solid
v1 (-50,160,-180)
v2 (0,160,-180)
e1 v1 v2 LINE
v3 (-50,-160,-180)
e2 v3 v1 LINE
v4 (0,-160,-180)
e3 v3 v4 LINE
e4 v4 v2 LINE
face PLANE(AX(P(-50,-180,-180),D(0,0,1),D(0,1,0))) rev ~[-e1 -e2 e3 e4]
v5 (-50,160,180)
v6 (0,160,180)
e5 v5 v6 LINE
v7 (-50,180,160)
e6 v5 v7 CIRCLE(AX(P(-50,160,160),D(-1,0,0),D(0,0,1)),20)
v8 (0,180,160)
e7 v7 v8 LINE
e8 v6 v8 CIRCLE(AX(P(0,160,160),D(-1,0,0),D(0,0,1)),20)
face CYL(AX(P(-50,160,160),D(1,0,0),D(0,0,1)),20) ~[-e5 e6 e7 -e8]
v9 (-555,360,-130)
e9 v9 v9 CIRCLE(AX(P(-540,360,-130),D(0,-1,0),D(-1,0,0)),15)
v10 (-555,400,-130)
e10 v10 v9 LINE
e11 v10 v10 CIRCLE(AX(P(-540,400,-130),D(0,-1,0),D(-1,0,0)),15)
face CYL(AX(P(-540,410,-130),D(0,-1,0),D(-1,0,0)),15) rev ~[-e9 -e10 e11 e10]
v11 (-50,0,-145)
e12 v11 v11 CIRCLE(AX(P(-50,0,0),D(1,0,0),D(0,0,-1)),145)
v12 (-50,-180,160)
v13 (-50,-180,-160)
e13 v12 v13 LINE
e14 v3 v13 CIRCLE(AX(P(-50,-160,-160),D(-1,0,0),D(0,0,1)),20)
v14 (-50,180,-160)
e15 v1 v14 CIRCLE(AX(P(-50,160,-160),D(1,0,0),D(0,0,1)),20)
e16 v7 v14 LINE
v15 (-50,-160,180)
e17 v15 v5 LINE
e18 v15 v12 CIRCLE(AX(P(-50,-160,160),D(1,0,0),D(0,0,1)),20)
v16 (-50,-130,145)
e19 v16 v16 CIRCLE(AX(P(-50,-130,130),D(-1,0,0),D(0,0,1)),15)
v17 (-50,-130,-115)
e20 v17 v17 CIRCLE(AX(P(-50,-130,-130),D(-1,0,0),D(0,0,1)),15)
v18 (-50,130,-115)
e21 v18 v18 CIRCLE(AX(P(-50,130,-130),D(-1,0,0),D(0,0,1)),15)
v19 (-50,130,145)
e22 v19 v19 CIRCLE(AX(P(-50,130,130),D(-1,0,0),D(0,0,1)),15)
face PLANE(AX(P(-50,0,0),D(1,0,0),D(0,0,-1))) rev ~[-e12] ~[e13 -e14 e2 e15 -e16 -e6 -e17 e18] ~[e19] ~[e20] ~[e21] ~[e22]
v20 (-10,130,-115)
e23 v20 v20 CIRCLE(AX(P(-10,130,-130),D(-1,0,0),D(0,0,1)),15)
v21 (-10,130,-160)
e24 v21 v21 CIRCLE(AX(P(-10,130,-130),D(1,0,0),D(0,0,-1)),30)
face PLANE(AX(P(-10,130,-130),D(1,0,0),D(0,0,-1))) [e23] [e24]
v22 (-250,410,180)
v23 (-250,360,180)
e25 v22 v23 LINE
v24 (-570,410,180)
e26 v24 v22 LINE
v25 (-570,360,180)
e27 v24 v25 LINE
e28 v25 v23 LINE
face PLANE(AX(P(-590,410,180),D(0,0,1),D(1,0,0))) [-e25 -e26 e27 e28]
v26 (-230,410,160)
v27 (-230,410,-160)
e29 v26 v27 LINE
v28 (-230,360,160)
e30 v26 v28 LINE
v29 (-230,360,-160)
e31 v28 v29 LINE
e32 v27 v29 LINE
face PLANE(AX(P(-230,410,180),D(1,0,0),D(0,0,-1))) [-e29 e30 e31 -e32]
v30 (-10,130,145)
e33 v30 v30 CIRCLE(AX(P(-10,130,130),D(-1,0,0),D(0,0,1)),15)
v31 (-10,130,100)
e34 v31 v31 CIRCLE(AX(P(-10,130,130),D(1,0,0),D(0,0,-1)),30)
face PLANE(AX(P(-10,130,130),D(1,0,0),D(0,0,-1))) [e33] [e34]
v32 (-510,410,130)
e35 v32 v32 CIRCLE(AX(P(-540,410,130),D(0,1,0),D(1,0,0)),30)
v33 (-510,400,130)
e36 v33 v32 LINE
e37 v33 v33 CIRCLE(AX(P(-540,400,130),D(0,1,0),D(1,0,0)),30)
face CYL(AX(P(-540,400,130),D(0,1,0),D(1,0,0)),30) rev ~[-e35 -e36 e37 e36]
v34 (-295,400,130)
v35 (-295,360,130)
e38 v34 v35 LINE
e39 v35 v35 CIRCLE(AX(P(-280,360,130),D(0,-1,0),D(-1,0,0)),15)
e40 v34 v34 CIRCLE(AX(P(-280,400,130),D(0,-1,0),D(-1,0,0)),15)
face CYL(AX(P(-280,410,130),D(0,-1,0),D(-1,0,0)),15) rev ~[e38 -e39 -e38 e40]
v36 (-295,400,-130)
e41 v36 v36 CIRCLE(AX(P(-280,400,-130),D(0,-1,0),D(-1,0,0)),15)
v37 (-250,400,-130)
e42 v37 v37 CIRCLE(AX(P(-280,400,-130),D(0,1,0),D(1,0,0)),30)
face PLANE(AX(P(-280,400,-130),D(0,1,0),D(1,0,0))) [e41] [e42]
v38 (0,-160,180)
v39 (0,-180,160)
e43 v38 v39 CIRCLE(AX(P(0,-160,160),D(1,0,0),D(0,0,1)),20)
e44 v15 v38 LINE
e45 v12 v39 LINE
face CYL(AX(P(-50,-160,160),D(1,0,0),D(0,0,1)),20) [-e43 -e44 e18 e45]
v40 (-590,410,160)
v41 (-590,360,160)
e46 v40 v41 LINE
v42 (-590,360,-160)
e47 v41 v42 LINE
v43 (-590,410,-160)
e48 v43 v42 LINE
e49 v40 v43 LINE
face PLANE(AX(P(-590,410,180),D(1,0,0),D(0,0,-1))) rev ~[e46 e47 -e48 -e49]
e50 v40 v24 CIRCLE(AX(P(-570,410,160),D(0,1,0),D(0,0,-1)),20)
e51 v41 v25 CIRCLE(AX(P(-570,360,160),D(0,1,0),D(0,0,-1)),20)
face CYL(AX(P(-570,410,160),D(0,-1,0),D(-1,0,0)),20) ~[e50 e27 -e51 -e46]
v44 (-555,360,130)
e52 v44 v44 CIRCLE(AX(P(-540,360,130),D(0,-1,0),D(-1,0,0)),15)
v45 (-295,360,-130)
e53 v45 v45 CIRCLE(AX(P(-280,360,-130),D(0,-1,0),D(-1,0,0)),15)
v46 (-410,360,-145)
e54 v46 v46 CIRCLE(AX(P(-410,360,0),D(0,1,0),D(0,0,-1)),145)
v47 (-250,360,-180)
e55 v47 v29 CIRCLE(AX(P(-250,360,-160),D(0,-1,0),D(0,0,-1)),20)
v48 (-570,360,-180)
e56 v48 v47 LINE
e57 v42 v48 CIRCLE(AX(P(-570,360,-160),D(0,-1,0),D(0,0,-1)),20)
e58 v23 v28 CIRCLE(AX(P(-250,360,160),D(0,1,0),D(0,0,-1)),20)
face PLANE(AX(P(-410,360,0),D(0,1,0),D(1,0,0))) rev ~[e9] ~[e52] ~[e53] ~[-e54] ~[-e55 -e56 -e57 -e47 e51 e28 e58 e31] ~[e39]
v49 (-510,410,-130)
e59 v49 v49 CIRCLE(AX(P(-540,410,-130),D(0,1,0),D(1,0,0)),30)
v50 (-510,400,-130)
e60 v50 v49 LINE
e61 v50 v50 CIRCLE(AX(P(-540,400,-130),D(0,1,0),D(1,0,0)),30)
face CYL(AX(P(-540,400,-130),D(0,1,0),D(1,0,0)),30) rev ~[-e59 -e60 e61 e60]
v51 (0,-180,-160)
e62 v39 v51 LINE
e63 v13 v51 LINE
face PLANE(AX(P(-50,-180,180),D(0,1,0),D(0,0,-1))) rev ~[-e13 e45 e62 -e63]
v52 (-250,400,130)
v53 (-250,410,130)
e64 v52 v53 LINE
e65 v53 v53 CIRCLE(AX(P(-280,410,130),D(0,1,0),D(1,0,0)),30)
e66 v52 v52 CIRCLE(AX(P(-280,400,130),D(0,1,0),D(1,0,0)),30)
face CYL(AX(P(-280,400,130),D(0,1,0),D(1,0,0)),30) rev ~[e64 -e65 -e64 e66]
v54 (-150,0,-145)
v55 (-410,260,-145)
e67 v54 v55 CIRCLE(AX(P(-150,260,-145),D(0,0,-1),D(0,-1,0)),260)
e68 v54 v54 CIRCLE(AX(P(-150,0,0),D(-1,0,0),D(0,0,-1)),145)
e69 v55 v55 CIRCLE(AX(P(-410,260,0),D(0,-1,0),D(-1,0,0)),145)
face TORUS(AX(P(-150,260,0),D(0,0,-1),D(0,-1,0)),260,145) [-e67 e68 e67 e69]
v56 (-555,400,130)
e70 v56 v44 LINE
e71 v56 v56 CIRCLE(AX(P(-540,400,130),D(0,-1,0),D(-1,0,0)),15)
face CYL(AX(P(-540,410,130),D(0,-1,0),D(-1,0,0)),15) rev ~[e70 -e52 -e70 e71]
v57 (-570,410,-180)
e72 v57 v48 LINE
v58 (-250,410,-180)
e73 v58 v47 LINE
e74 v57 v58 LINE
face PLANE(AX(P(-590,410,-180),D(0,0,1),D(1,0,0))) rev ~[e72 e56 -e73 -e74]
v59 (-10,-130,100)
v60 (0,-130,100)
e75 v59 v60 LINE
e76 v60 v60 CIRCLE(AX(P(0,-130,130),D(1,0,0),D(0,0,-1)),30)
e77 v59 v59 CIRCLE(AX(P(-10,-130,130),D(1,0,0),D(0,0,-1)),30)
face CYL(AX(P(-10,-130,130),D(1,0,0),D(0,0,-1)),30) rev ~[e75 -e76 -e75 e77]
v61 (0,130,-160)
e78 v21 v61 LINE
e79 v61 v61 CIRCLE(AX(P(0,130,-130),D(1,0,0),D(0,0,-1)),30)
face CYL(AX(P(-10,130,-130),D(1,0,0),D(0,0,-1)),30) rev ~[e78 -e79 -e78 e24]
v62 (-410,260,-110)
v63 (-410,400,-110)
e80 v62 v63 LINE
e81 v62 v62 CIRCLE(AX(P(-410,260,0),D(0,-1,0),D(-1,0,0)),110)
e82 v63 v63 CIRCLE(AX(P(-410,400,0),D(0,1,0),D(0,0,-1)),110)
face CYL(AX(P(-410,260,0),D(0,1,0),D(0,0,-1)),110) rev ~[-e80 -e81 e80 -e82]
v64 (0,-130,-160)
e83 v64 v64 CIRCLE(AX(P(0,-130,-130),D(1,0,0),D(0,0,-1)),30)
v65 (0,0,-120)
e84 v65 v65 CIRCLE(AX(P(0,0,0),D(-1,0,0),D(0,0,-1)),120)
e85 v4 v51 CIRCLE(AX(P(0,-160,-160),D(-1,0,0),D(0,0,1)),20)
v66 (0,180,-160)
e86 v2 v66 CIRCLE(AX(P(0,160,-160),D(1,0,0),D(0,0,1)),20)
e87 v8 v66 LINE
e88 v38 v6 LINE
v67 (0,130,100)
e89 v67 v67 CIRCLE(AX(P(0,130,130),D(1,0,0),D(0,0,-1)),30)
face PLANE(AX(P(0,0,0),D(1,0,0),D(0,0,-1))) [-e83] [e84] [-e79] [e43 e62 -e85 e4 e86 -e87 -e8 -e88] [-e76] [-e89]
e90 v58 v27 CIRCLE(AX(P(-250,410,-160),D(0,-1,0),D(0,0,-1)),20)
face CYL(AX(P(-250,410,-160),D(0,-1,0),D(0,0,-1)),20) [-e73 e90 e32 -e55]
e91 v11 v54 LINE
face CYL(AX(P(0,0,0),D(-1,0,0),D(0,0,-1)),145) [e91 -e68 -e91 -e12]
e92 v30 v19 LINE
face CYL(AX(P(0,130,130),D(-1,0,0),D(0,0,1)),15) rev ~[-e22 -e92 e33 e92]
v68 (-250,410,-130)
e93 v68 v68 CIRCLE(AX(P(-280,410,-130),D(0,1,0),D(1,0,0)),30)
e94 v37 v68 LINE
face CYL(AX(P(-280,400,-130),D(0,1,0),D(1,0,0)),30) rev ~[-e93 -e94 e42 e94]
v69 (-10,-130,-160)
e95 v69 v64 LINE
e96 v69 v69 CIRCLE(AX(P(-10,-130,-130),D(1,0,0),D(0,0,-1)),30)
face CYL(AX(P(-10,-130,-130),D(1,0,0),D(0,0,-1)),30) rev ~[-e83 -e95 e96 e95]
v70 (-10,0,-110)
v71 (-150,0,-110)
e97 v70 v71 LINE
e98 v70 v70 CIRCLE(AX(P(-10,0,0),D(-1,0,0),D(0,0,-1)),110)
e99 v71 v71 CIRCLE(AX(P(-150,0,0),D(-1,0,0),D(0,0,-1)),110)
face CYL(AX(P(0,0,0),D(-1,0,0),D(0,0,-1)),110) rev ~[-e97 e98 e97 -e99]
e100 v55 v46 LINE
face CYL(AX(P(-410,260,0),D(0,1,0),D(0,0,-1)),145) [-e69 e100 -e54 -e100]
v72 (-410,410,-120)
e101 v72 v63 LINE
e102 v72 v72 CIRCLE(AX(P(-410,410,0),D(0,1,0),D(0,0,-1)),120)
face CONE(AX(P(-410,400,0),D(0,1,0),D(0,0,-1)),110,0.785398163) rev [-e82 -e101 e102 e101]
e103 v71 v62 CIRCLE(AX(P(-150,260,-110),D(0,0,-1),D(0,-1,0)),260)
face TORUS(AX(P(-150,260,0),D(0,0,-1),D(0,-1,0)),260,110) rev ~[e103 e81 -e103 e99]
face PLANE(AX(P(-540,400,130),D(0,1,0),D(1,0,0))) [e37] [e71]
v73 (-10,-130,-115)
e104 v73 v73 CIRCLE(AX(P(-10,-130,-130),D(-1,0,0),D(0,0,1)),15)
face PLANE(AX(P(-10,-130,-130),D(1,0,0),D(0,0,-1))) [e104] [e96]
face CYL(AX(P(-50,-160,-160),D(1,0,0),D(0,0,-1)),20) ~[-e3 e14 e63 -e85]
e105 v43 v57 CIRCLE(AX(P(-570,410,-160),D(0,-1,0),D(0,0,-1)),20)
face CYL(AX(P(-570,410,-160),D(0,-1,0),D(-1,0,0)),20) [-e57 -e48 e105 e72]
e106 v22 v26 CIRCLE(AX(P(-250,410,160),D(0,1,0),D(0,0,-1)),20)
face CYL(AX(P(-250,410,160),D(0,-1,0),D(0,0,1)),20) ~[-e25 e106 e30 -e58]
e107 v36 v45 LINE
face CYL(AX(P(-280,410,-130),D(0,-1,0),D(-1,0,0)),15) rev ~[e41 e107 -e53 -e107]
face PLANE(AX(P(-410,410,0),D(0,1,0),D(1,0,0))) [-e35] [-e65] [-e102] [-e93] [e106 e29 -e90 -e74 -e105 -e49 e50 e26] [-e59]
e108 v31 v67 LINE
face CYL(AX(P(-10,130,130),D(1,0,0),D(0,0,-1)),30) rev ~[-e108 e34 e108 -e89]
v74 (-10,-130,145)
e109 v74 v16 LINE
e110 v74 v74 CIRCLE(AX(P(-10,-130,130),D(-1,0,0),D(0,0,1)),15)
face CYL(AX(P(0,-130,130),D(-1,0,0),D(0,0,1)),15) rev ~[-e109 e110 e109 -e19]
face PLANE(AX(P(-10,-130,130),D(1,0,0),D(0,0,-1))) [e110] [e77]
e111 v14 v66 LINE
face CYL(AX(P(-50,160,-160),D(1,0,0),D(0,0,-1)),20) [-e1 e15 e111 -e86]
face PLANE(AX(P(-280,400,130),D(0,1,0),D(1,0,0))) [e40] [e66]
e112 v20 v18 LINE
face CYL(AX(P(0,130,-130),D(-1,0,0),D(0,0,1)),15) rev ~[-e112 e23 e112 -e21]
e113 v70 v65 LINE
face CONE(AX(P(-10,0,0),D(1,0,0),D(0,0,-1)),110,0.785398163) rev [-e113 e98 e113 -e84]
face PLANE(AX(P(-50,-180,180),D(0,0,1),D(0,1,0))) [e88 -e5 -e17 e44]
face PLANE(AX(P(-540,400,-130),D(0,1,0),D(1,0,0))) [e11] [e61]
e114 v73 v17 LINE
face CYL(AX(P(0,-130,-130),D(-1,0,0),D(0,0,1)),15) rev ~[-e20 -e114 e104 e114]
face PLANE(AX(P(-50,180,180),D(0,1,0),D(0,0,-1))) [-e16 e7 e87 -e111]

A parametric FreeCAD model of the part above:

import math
import FreeCAD as App
import Part
import Sketcher


def edges_at(feature, points):
    """Names of the edges that pass closest to the given points."""
    edges = feature.Shape.Edges
    near = lambda p: min(range(len(edges)), key=lambda i: edges[i].distToShape(Part.Vertex(*p))[0])
    return sorted({f"Edge{near(p) + 1}" for p in points})


def add_polygon(sketch, points):
    """Adds a closed chain of lines whose ends are joined by coincident constraints."""
    first, n = sketch.GeometryCount, len(points)
    for a, b in zip(points, points[1:] + points[:1]):
        sketch.addGeometry(Part.LineSegment(App.Vector(*a, 0), App.Vector(*b, 0)), False)
    for i in range(n):
        sketch.addConstraint(Sketcher.Constraint("Coincident", first + i, 2, first + (i + 1) % n, 1))

doc = App.newDocument("Part")
body = doc.addObject("PartDesign::Body", "Body")

sketch1 = doc.addObject("Sketcher::SketchObject", "Sketch")
body.addObject(sketch1)
sketch1.AttachmentSupport = (doc.YZ_Plane, [""])
sketch1.MapMode = "FlatFace"
sketch1.addGeometry([
    Part.Circle(App.Vector(0, 0, 0), App.Vector(0, 0, 1), 145),
    Part.Circle(App.Vector(0, 0, 0), App.Vector(0, 0, 1), 110),
], False)
sketch1.addConstraint([
    Sketcher.Constraint("Coincident", 0, 3, -1, 1),
    Sketcher.Constraint("Coincident", 1, 3, -1, 1),
    Sketcher.Constraint("Diameter", 0, 290.0),
    Sketcher.Constraint("Diameter", 1, 220.0),
])

sketch2 = doc.addObject("Sketcher::SketchObject", "Sketch001")
body.addObject(sketch2)
sketch2.AttachmentSupport = (doc.XY_Plane, [""])
sketch2.MapMode = "FlatFace"
sketch2.addGeometry([
    Part.LineSegment(App.Vector(0, 0, 0), App.Vector(-150, 0, 0)),
    Part.ArcOfCircle(Part.Circle(App.Vector(-150, 260, 0), App.Vector(0, 0, 1), 260), math.radians(180), math.radians(270)),
    Part.LineSegment(App.Vector(-410, 260, 0), App.Vector(-410, 410, 0)),
], False)
sketch2.addConstraint([
    Sketcher.Constraint("Tangent", 0, 2, 1, 2),
    Sketcher.Constraint("Tangent", 1, 1, 2, 1),
    Sketcher.Constraint("Horizontal", 0),
    Sketcher.Constraint("Vertical", 2),
    Sketcher.Constraint("Coincident", 0, 1, -1, 1),
    Sketcher.Constraint("Equal", 0, 2),
    Sketcher.Constraint("Radius", 1, 260.0),
    Sketcher.Constraint("DistanceX", 0, 2, 0, 1, 150.0),
])
doc.recompute()

additivepipe = doc.addObject("PartDesign::AdditivePipe", "AdditivePipe")
body.addObject(additivepipe)
additivepipe.Profile = sketch1
additivepipe.Spine = (sketch2, ["Edge1", "Edge2", "Edge3"])

sketch3 = doc.addObject("Sketcher::SketchObject", "Sketch002")
body.addObject(sketch3)
sketch3.AttachmentSupport = (doc.YZ_Plane, [""])
sketch3.MapMode = "FlatFace"
sketch3.AttachmentOffset = App.Placement(App.Vector(0, 0, -50), App.Rotation())
add_polygon(sketch3, [(180, 180), (-180, 180), (-180, -180), (180, -180)])
sketch3.addGeometry(Part.Circle(App.Vector(0, 0, 0), App.Vector(0, 0, 1), 145), False)
sketch3.addConstraint([
    Sketcher.Constraint("Horizontal", 0),
    Sketcher.Constraint("Vertical", 1),
    Sketcher.Constraint("Horizontal", 2),
    Sketcher.Constraint("Vertical", 3),
    Sketcher.Constraint("Coincident", 4, 3, -1, 1),
    Sketcher.Constraint("Symmetric", 0, 2, 2, 2, -1, 1),
    Sketcher.Constraint("Equal", 2, 1),
    Sketcher.Constraint("Diameter", 4, 290.0),
    Sketcher.Constraint("DistanceX", 0, 2, 0, 1, 360.0),
])
pad1 = doc.addObject("PartDesign::Pad", "Pad")
body.addObject(pad1)
pad1.Profile = sketch3
pad1.Length = 50
doc.recompute()

fillet = doc.addObject("PartDesign::Fillet", "Fillet")
body.addObject(fillet)
fillet.Base = (pad1, edges_at(pad1, [
    (-25, 180, -180),
    (-25, -180, -180),
    (-25, -180, 180),
    (-25, 180, 180),
]))
fillet.Radius = 20

sketch4 = doc.addObject("Sketcher::SketchObject", "Sketch003")
body.addObject(sketch4)
sketch4.AttachmentSupport = (doc.YZ_Plane, [""])
sketch4.MapMode = "FlatFace"
sketch4.addGeometry([
    Part.Circle(App.Vector(130, 130, 0), App.Vector(0, 0, 1), 15),
    Part.Circle(App.Vector(130, -130, 0), App.Vector(0, 0, 1), 15),
    Part.Circle(App.Vector(-130, -130, 0), App.Vector(0, 0, 1), 15),
    Part.Circle(App.Vector(-130, 130, 0), App.Vector(0, 0, 1), 15),
], False)
sketch4.addConstraint([
    Sketcher.Constraint("Equal", 0, 1),
    Sketcher.Constraint("Equal", 1, 2),
    Sketcher.Constraint("Equal", 2, 3),
    Sketcher.Constraint("Symmetric", 0, 3, 2, 3, -1, 1),
    Sketcher.Constraint("Symmetric", 1, 3, 3, 3, -1, 1),
    Sketcher.Constraint("Symmetric", 1, 3, 2, 3, -2),
    Sketcher.Constraint("Diameter", 0, 30.0),
    Sketcher.Constraint("DistanceX", -1, 1, 0, 3, 130.0),
    Sketcher.Constraint("DistanceY", -1, 1, 0, 3, 130.0),
])
doc.recompute()
hole = doc.addObject("PartDesign::Hole", "Hole")
body.addObject(hole)
hole.Profile = sketch4
hole.ThreadType = "None"
hole.Diameter = 30
hole.DepthType = "Dimension"
hole.Depth = 50
hole.DrillPoint = "Flat"
hole.HoleCutType = "Counterbore"
hole.HoleCutDiameter = 60
hole.HoleCutDepth = 10

sketch5 = doc.addObject("Sketcher::SketchObject", "Sketch004")
body.addObject(sketch5)
sketch5.AttachmentSupport = (doc.XZ_Plane, [""])
sketch5.MapMode = "FlatFace"
sketch5.AttachmentOffset = App.Placement(App.Vector(0, 0, -410), App.Rotation())
add_polygon(sketch5, [(-590, -180), (-590, 180), (-230, 180), (-230, -180)])
sketch5.addGeometry(Part.Circle(App.Vector(-410, 0, 0), App.Vector(0, 0, 1), 145), False)
sketch5.addConstraint([
    Sketcher.Constraint("Vertical", 0),
    Sketcher.Constraint("Horizontal", 1),
    Sketcher.Constraint("Vertical", 2),
    Sketcher.Constraint("Horizontal", 3),
    Sketcher.Constraint("PointOnObject", 4, 3, -1),
    Sketcher.Constraint("Equal", 3, 0),
    Sketcher.Constraint("Diameter", 4, 290.0),
    Sketcher.Constraint("DistanceX", 1, 1, 1, 2, 360.0),
    Sketcher.Constraint("DistanceX", 4, 3, -1, 1, 410.0),
    Sketcher.Constraint("DistanceX", 0, 2, -1, 1, 590.0),
    Sketcher.Constraint("DistanceY", -1, 1, 0, 2, 180.0),
])
pad2 = doc.addObject("PartDesign::Pad", "Pad001")
body.addObject(pad2)
pad2.Profile = sketch5
pad2.Length = 50

sketch6 = doc.addObject("Sketcher::SketchObject", "Sketch005")
body.addObject(sketch6)
sketch6.AttachmentSupport = (doc.XZ_Plane, [""])
sketch6.MapMode = "FlatFace"
sketch6.AttachmentOffset = App.Placement(App.Vector(0, 0, -410), App.Rotation())
sketch6.addGeometry([
    Part.Circle(App.Vector(-540, -130, 0), App.Vector(0, 0, 1), 15),
    Part.Circle(App.Vector(-280, -130, 0), App.Vector(0, 0, 1), 15),
    Part.Circle(App.Vector(-280, 130, 0), App.Vector(0, 0, 1), 15),
    Part.Circle(App.Vector(-540, 130, 0), App.Vector(0, 0, 1), 15),
], False)
sketch6.addConstraint([
    Sketcher.Constraint("Equal", 0, 1),
    Sketcher.Constraint("Equal", 1, 2),
    Sketcher.Constraint("Equal", 2, 3),
    Sketcher.Constraint("Symmetric", 1, 3, 2, 3, -1),
    Sketcher.Constraint("Symmetric", 0, 3, 3, 3, -1),
    Sketcher.Constraint("Horizontal", 0, 3, 1, 3),
    Sketcher.Constraint("Diameter", 0, 30.0),
    Sketcher.Constraint("DistanceX", 0, 3, -1, 1, 540.0),
    Sketcher.Constraint("DistanceY", 0, 3, -1, 1, 130.0),
    Sketcher.Constraint("DistanceX", 1, 3, -1, 1, 280.0),
])
doc.recompute()
hole2 = doc.addObject("PartDesign::Hole", "Hole001")
body.addObject(hole2)
hole2.Profile = sketch6
hole2.ThreadType = "None"
hole2.Diameter = 30
hole2.DepthType = "Dimension"
hole2.Depth = 50
hole2.DrillPoint = "Flat"
hole2.HoleCutType = "Counterbore"
hole2.HoleCutDiameter = 60
hole2.HoleCutDepth = 10
hole2.Reversed = True
doc.recompute()

fillet2 = doc.addObject("PartDesign::Fillet", "Fillet001")
body.addObject(fillet2)
fillet2.Base = (hole2, edges_at(hole2, [
    (-230, 385, -180),
    (-230, 385, 180),
    (-590, 385, 180),
    (-590, 385, -180),
]))
fillet2.Radius = 20
doc.recompute()

chamfer = doc.addObject("PartDesign::Chamfer", "Chamfer")
body.addObject(chamfer)
chamfer.Base = (fillet2, edges_at(fillet2, [(-410, 410, 110), (0, 0, 110)]))
chamfer.Size = 10

doc.recompute()
